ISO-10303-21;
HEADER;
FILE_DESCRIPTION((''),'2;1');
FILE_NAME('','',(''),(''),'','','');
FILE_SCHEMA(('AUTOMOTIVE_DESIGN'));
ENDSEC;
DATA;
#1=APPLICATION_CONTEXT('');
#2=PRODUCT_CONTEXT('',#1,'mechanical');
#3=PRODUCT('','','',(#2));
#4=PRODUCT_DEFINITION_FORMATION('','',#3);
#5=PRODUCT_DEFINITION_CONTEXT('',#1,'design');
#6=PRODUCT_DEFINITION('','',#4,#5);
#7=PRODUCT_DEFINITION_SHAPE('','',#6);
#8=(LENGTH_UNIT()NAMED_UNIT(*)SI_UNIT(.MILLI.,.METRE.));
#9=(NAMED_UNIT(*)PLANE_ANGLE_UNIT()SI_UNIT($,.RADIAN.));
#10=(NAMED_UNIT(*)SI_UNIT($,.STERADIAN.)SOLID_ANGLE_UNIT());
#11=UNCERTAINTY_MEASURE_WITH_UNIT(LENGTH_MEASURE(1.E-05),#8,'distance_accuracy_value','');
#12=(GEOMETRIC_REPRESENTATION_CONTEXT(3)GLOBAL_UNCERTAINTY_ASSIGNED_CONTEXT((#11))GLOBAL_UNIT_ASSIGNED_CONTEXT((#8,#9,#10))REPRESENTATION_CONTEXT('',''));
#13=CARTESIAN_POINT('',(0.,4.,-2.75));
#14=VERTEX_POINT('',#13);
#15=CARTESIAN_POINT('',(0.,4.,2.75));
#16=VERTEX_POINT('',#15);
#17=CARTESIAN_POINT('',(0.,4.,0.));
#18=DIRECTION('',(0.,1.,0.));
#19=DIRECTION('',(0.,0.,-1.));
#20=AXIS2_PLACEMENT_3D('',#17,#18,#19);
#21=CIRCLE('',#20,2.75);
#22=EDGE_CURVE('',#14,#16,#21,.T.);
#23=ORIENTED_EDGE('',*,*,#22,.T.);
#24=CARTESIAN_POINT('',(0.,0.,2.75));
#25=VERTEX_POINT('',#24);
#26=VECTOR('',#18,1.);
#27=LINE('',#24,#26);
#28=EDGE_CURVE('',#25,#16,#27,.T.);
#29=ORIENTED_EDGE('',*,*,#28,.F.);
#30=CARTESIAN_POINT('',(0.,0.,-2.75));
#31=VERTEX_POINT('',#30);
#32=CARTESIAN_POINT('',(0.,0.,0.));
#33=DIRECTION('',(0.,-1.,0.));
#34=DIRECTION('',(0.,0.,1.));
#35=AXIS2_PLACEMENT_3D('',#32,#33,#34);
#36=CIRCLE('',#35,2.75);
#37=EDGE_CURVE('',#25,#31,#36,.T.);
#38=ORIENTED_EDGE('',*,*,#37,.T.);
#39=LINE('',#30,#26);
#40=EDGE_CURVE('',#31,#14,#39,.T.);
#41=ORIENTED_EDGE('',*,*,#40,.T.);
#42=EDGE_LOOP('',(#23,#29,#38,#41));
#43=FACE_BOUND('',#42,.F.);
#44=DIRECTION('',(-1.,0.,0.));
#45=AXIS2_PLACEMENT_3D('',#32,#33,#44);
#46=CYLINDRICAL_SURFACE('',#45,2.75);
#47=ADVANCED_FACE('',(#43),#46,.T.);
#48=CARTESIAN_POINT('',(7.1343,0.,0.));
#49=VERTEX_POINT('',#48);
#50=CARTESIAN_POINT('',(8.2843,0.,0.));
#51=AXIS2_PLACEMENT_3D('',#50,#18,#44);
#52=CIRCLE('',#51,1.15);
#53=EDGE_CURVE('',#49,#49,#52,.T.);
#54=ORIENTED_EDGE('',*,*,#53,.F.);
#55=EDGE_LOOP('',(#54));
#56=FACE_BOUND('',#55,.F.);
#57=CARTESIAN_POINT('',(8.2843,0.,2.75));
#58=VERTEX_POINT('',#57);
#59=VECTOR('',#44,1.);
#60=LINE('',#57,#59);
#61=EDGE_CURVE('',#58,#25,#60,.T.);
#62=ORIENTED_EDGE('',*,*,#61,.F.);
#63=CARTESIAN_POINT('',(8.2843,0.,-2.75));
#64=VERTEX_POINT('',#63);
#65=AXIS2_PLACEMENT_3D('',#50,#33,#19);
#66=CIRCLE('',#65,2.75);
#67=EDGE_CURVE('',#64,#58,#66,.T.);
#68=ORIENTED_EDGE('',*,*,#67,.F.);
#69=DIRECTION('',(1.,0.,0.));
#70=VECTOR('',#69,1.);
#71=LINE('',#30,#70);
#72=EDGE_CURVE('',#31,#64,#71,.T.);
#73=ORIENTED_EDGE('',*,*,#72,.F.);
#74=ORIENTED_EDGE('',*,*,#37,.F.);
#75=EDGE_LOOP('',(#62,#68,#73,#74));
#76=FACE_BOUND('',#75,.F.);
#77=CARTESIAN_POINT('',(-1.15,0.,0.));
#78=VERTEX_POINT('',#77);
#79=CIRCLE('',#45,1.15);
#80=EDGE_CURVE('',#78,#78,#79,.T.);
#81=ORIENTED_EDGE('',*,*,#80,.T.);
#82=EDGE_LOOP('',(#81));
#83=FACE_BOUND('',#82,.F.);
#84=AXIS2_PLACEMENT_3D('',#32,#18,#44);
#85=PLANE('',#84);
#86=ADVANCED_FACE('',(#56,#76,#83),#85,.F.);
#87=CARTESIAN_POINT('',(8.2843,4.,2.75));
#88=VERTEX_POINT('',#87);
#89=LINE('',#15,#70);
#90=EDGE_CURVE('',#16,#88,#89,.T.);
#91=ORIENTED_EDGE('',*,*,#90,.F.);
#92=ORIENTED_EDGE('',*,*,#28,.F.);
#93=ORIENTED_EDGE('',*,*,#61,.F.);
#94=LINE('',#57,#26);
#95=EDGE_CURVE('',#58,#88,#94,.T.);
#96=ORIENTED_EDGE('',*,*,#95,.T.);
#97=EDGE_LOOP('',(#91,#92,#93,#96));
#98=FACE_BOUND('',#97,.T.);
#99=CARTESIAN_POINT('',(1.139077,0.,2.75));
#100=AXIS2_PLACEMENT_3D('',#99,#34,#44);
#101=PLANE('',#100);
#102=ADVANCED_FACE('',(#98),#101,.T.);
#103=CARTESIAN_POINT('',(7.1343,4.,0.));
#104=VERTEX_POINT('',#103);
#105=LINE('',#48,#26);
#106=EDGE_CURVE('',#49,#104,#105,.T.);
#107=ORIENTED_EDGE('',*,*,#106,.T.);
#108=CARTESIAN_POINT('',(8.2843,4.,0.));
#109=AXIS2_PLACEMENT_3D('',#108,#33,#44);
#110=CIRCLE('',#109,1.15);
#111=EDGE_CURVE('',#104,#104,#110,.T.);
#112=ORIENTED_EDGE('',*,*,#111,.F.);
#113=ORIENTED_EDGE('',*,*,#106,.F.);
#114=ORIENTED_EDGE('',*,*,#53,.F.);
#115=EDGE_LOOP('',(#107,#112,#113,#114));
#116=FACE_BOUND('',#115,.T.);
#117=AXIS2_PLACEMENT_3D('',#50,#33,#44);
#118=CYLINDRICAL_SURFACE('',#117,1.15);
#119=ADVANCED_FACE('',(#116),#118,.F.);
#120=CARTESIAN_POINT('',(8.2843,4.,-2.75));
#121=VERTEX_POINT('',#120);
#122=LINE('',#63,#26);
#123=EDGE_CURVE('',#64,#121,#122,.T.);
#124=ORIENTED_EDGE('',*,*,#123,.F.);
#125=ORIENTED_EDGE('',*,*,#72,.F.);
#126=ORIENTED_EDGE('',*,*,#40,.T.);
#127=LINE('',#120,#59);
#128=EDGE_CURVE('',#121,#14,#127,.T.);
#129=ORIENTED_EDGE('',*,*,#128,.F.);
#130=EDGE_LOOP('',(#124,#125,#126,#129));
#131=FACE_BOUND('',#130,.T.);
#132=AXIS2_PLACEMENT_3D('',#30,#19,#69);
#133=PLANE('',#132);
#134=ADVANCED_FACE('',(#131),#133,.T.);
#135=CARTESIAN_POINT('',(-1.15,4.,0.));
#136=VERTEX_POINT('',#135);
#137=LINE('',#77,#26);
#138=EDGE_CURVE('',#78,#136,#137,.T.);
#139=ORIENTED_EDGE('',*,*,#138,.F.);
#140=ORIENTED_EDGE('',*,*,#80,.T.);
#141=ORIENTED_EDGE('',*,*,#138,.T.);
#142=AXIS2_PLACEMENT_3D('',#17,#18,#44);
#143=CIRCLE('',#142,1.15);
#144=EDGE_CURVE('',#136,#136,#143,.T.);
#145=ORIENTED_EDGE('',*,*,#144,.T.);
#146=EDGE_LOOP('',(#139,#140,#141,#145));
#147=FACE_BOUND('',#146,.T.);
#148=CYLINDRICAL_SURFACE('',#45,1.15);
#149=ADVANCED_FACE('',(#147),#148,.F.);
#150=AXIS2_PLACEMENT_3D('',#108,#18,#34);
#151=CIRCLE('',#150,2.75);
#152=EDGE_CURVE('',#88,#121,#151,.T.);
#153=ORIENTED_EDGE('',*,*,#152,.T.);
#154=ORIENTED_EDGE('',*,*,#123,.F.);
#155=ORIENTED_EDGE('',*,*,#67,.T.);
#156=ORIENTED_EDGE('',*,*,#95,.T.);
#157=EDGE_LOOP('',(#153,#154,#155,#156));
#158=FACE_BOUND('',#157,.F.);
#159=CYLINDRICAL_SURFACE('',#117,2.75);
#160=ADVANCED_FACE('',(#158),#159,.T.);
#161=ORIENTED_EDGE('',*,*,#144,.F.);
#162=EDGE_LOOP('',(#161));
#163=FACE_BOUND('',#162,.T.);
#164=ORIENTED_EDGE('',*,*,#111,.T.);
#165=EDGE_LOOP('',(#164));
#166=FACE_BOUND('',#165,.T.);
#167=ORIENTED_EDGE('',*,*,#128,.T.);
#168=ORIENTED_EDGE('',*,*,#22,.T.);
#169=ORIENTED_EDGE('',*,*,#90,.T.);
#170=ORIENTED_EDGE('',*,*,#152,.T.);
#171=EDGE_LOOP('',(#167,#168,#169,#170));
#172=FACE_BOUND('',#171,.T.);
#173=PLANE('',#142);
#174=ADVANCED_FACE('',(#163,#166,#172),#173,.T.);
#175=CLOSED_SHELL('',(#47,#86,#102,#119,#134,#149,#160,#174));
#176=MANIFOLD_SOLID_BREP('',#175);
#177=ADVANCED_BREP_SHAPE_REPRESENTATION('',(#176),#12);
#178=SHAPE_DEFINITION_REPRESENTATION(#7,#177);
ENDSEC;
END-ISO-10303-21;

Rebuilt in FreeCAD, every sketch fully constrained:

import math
import FreeCAD as App
import Part
import Sketcher

V = App.Vector
Q = App.Units.Quantity

doc = App.newDocument("Part")
body = doc.addObject("PartDesign::Body", "Body")

# Sketch on XZ plane
sketch1 = body.newObject("Sketcher::SketchObject", "Sketch")
sketch1.AttachmentSupport = (doc.getObject("XZ_Plane"), [""])
sketch1.MapMode = "FlatFace"
sketch1.addGeometry(Part.LineSegment(V(0, 2.8, 0), V(8.3, 2.8, 0)), False)
sketch1.addGeometry(Part.ArcOfCircle(Part.Circle(V(8.3, 0, 0), V(0, 0, 1), 2.8), math.radians(-90), math.radians(90)), False)
sketch1.addGeometry(Part.LineSegment(V(8.3, -2.8, 0), V(0, -2.8, 0)), False)
sketch1.addGeometry(Part.ArcOfCircle(Part.Circle(V(0, 0, 0), V(0, 0, 1), 2.8), math.radians(90), math.radians(270)), False)
sketch1.addGeometry(Part.Circle(V(0, 0, 0), V(0, 0, 1), 1.1), False)
sketch1.addGeometry(Part.Circle(V(8.3, 0, 0), V(0, 0, 1), 1.1), False)
sketch1.addConstraint(Sketcher.Constraint("Tangent", 0, 2, 1, 2))
sketch1.addConstraint(Sketcher.Constraint("Tangent", 1, 1, 2, 1))
sketch1.addConstraint(Sketcher.Constraint("Tangent", 2, 2, 3, 2))
sketch1.addConstraint(Sketcher.Constraint("Tangent", 3, 1, 0, 1))
sketch1.addConstraint(Sketcher.Constraint("Horizontal", 0))
sketch1.addConstraint(Sketcher.Constraint("Horizontal", 2))
sketch1.addConstraint(Sketcher.Constraint("Coincident", 3, 3, -1, 1))
sketch1.addConstraint(Sketcher.Constraint("Coincident", 4, 3, -1, 1))
sketch1.addConstraint(Sketcher.Constraint("Coincident", 5, 3, 1, 3))
sketch1.addConstraint(Sketcher.Constraint("Equal", 4, 5))
sketch1.addConstraint(Sketcher.Constraint("Diameter", 4, Q("2.3 mm")))
sketch1.addConstraint(Sketcher.Constraint("Radius", 1, Q("2.75 mm")))
sketch1.addConstraint(Sketcher.Constraint("DistanceX", 0, 1, 0, 2, Q("8.2843 mm")))
pad1 = body.newObject("PartDesign::Pad", "Pad")
pad1.Profile = sketch1
pad1.Length = 4
pad1.Reversed = True

doc.recompute()
